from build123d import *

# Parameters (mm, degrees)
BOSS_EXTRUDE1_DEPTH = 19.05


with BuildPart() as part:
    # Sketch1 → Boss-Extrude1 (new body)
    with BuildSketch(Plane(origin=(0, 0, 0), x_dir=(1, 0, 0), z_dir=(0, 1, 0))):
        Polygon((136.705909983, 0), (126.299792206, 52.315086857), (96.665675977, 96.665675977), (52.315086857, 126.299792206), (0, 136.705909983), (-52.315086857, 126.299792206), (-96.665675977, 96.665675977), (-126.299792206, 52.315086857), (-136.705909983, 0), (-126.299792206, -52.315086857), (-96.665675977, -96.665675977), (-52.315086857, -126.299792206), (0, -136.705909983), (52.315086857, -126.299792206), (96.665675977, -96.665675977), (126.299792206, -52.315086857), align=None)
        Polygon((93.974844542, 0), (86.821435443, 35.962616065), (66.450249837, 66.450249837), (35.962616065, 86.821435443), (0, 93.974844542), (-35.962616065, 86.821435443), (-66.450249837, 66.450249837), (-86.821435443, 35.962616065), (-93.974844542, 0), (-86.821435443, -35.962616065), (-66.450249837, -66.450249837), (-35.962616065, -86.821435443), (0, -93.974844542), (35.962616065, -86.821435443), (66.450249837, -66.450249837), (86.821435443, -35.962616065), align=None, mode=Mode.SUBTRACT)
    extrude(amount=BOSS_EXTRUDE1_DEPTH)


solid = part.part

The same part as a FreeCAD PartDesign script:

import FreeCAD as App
import Part
import Sketcher

V = App.Vector
Q = App.Units.Quantity


def add_polygon(sketch, points):
    """Adds a closed chain of lines whose ends are joined by coincident constraints."""
    first, n = sketch.GeometryCount, len(points)
    for a, b in zip(points, points[1:] + points[:1]):
        sketch.addGeometry(Part.LineSegment(App.Vector(*a, 0), App.Vector(*b, 0)), False)
    for i in range(n):
        sketch.addConstraint(Sketcher.Constraint("Coincident", first + i, 2, first + (i + 1) % n, 1))

doc = App.newDocument("Part")
params = doc.addObject("Spreadsheet::Sheet", "Params")
for row, (alias, value) in enumerate([
    ("sketch1_length", "2.1 in"),
    ("pad1_length", "0.75 in"),
], start=1):
    params.set(f"A{row}", alias)
    params.set(f"B{row}", "=" + value)
    params.setAlias(f"B{row}", alias)

body = doc.addObject("PartDesign::Body", "Body")

# Sketch on XZ plane
sketch1 = doc.addObject("Sketcher::SketchObject", "Sketch")
body.addObject(sketch1)
sketch1.AttachmentSupport = (doc.XZ_Plane, [""])
sketch1.MapMode = "FlatFace"
add_polygon(sketch1, [(137, 0), (126, -52), (97, -97), (52, -126), (0, -137), (-52, -126), (-97, -97), (-126, -52), (-137, 0), (-126, 52), (-97, 97), (-52, 126), (0, 137), (52, 126), (97, 97), (126, 52)])  # lines 0-15
add_polygon(sketch1, [(87, -36), (94, 0), (87, 36), (66, 66), (36, 87), (0, 94), (-36, 87), (-66, 66), (-87, 36), (-94, 0), (-87, -36), (-66, -66), (-36, -87), (0, -94), (36, -87), (66, -66)])  # lines 16-31
sketch1.addConstraint([
    Sketcher.Constraint("Symmetric", 0, 2, 8, 2, -1, 1),
    Sketcher.Constraint("Symmetric", 1, 2, 9, 2, -1, 1),
    Sketcher.Constraint("Symmetric", 2, 2, 10, 2, -1, 1),
    Sketcher.Constraint("Symmetric", 3, 2, 11, 2, -1, 1),
    Sketcher.Constraint("Symmetric", 4, 2, 12, 2, -1, 1),
    Sketcher.Constraint("Symmetric", 5, 2, 13, 2, -1, 1),
    Sketcher.Constraint("Symmetric", 6, 2, 14, 2, -1, 1),
    Sketcher.Constraint("Symmetric", 7, 2, 15, 2, -1, 1),
    Sketcher.Constraint("Symmetric", 16, 2, 24, 2, -1, 1),
    Sketcher.Constraint("Symmetric", 17, 2, 25, 2, -1, 1),
    Sketcher.Constraint("Symmetric", 18, 2, 26, 2, -1, 1),
    Sketcher.Constraint("Symmetric", 19, 2, 27, 2, -1, 1),
    Sketcher.Constraint("Symmetric", 20, 2, 28, 2, -1, 1),
    Sketcher.Constraint("Symmetric", 21, 2, 29, 2, -1, 1),
    Sketcher.Constraint("Symmetric", 22, 2, 30, 2, -1, 1),
    Sketcher.Constraint("Symmetric", 23, 2, 31, 2, -1, 1),
    Sketcher.Constraint("Symmetric", 2, 2, 4, 2, -2),
    Sketcher.Constraint("Symmetric", 1, 2, 5, 2, -2),
    Sketcher.Constraint("Symmetric", 0, 2, 6, 2, -2),
    Sketcher.Constraint("Symmetric", 19, 2, 21, 2, -2),
    Sketcher.Constraint("Symmetric", 18, 2, 22, 2, -2),
    Sketcher.Constraint("Symmetric", 17, 2, 23, 2, -2),
    Sketcher.Constraint("PointOnObject", 3, 2, -2),
    Sketcher.Constraint("PointOnObject", 7, 2, -1),
    Sketcher.Constraint("PointOnObject", 16, 2, -1),
    Sketcher.Constraint("PointOnObject", 20, 2, -2),
    Sketcher.Constraint("Perpendicular", 0, 4),
    Sketcher.Constraint("Perpendicular", 1, 5),
    Sketcher.Constraint("Perpendicular", 12, 16),
    Sketcher.Constraint("Parallel", 14, 18),
    Sketcher.Constraint("Parallel", 13, 19),
    Sketcher.Constraint("Perpendicular", 16, 20),
    Sketcher.Constraint("Equal", 0, 1),
    Sketcher.Constraint("Equal", 1, 2),
    Sketcher.Constraint("Equal", 2, 3),
    Sketcher.Constraint("Equal", 17, 18),
    Sketcher.Constraint("Equal", 18, 19),
    Sketcher.Constraint("Equal", 19, 20),
    Sketcher.Constraint("Distance", 0, Q("2.1 in")),
    Sketcher.Constraint("Angle", 0, Q("-101.25 deg")),
    Sketcher.Constraint("Angle", 1, Q("-123.75 deg")),
    Sketcher.Constraint("DistanceX", -1, 1, 18, 2, 66.45025),
])
sketch1.setExpression("Constraints[70]", "Params.sketch1_length")
pad1 = doc.addObject("PartDesign::Pad", "Pad")
body.addObject(pad1)
pad1.Profile = sketch1
pad1.setExpression("Length", "Params.pad1_length")
pad1.Reversed = True

doc.recompute()
